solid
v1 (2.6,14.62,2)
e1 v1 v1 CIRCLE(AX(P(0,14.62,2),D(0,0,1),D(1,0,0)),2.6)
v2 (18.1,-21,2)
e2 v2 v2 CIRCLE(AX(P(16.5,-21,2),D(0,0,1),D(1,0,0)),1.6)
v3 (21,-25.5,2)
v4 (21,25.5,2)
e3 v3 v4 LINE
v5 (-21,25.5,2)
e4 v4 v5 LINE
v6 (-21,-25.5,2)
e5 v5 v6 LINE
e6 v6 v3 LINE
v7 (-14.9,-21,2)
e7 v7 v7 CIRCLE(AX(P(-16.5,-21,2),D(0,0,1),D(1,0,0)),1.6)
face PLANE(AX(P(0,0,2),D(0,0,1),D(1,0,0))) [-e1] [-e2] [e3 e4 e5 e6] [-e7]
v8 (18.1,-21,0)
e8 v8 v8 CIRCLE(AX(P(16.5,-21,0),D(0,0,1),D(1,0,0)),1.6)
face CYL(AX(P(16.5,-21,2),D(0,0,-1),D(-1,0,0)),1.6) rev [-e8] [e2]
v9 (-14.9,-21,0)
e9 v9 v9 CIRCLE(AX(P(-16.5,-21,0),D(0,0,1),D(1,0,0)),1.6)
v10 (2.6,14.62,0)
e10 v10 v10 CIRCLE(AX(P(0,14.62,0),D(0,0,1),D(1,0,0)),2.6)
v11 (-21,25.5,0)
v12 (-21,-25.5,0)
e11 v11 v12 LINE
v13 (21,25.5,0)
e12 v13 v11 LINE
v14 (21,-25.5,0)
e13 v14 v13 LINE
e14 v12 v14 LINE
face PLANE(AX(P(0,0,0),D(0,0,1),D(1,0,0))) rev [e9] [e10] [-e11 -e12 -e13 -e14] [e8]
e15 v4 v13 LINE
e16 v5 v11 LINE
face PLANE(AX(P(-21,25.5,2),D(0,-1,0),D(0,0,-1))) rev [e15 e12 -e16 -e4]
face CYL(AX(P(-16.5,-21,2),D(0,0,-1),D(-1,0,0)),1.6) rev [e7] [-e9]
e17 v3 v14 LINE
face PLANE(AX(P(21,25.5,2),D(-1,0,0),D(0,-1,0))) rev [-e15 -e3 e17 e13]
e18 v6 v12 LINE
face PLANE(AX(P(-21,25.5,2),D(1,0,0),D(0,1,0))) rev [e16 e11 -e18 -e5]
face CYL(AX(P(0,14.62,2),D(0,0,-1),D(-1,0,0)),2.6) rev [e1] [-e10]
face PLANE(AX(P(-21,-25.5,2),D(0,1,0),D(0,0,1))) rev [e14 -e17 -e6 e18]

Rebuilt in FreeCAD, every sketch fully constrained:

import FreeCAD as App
import Part
import Sketcher
Q = App.Units.Quantity


def add_polygon(sketch, points):
    """Adds a closed chain of lines whose ends are joined by coincident constraints."""
    first, n = sketch.GeometryCount, len(points)
    for a, b in zip(points, points[1:] + points[:1]):
        sketch.addGeometry(Part.LineSegment(App.Vector(*a, 0), App.Vector(*b, 0)), False)
    for i in range(n):
        sketch.addConstraint(Sketcher.Constraint("Coincident", first + i, 2, first + (i + 1) % n, 1))

doc = App.newDocument("Part")
body = doc.addObject("PartDesign::Body", "Body")

sketch1 = body.newObject("Sketcher::SketchObject", "Sketch")
sketch1.AttachmentSupport = (doc.getObject("XY_Plane"), [""])
sketch1.MapMode = "FlatFace"
add_polygon(sketch1, [(-21, 25.5), (-21, -25.5), (21, -25.5), (21, 25.5)])
sketch1.addGeometry(Part.Circle(App.Vector(-16.5, -21, 0), App.Vector(0, 0, 1), 1.6), False)
sketch1.addGeometry(Part.Circle(App.Vector(16.5, -21, 0), App.Vector(0, 0, 1), 1.6), False)
sketch1.addGeometry(Part.Circle(App.Vector(0, 14.62, 0), App.Vector(0, 0, 1), 2.6), False)
sketch1.addConstraint(Sketcher.Constraint("Vertical", 0))
sketch1.addConstraint(Sketcher.Constraint("Horizontal", 1))
sketch1.addConstraint(Sketcher.Constraint("Vertical", 2))
sketch1.addConstraint(Sketcher.Constraint("Horizontal", 3))
sketch1.addConstraint(Sketcher.Constraint("Equal", 4, 5))
sketch1.addConstraint(Sketcher.Constraint("Symmetric", 0, 2, 2, 2, -1, 1))
sketch1.addConstraint(Sketcher.Constraint("Symmetric", 4, 3, 5, 3, -2))
sketch1.addConstraint(Sketcher.Constraint("PointOnObject", 6, 3, -2))
sketch1.addConstraint(Sketcher.Constraint("Diameter", 4, Q("3.2 mm")))
sketch1.addConstraint(Sketcher.Constraint("Diameter", 6, Q("5.2 mm")))
sketch1.addConstraint(Sketcher.Constraint("DistanceX", 1, 1, 1, 2, Q("42 mm")))
sketch1.addConstraint(Sketcher.Constraint("DistanceY", 0, 2, 0, 1, Q("51 mm")))
sketch1.addConstraint(Sketcher.Constraint("DistanceY", 4, 3, -1, 1, Q("21 mm")))
sketch1.addConstraint(Sketcher.Constraint("DistanceX", 4, 3, 5, 3, Q("33 mm")))
sketch1.addConstraint(Sketcher.Constraint("DistanceY", -1, 1, 6, 3, Q("14.62 mm")))
pad1 = body.newObject("PartDesign::Pad", "Pad")
pad1.Profile = sketch1
pad1.Length = 2

doc.recompute()
